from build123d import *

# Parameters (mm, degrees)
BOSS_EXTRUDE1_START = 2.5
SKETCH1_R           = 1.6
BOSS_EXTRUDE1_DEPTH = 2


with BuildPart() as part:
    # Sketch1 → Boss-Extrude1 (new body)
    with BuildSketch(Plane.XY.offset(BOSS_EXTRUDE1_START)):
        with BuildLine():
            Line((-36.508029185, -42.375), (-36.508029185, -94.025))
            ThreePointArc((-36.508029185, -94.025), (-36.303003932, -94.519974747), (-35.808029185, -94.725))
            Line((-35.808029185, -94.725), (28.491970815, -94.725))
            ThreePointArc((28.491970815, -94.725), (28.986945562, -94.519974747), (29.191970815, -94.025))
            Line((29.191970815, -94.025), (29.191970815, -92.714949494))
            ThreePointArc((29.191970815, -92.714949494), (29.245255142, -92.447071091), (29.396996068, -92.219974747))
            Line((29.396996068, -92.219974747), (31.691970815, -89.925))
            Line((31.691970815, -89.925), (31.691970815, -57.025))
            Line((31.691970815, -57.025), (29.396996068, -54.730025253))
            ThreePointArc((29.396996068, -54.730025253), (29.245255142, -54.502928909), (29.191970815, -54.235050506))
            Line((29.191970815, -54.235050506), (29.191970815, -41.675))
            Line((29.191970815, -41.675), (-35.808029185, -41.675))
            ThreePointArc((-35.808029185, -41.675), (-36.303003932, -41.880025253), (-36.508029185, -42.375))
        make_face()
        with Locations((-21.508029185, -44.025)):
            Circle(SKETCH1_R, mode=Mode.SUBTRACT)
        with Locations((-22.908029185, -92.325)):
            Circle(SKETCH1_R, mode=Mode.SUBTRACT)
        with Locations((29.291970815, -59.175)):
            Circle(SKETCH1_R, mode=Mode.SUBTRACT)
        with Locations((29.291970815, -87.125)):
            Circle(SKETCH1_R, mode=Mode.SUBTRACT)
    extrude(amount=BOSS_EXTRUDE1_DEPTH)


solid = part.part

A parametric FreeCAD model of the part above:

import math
import FreeCAD as App
import Part
import Sketcher
Q = App.Units.Quantity

doc = App.newDocument("Part")
params = doc.addObject("Spreadsheet::Sheet", "Params")
for row, (alias, value) in enumerate([
    ("sketch1_diameter", "3.2 mm"),
    ("sketch1_radius", "0.7 mm"),
    ("sketch1_width", "65 mm"),
    ("sketch1_height", "32.9 mm"),
    ("sketch1_height2", "51.65 mm"),
    ("pad1_length", "2 mm"),
], start=1):
    params.set(f"A{row}", alias)
    params.set(f"B{row}", "=" + value)
    params.setAlias(f"B{row}", alias)

body = doc.addObject("PartDesign::Body", "Body")

sketch1 = doc.addObject("Sketcher::SketchObject", "Sketch")
body.addObject(sketch1)
sketch1.AttachmentSupport = (doc.XY_Plane, [""])
sketch1.MapMode = "FlatFace"
sketch1.AttachmentOffset = App.Placement(App.Vector(0, 0, 2.5), App.Rotation())
sketch1.addGeometry([
    Part.LineSegment(App.Vector(-36.5, -42.4, 0), App.Vector(-36.5, -94, 0)),
    Part.ArcOfCircle(Part.Circle(App.Vector(-35.8, -94, 0), App.Vector(0, 0, 1), 0.7), math.radians(180), math.radians(270)),
    Part.LineSegment(App.Vector(-35.8, -94.7, 0), App.Vector(28.5, -94.7, 0)),
    Part.ArcOfCircle(Part.Circle(App.Vector(28.5, -94, 0), App.Vector(0, 0, 1), 0.7), math.radians(-90), math.radians(0)),
    Part.LineSegment(App.Vector(29.2, -94, 0), App.Vector(29.2, -92.7, 0)),
    Part.ArcOfCircle(Part.Circle(App.Vector(29.9, -92.7, 0), App.Vector(0, 0, 1), 0.7), math.radians(135), math.radians(180)),
    Part.LineSegment(App.Vector(29.4, -92.2, 0), App.Vector(31.7, -89.9, 0)),
    Part.LineSegment(App.Vector(31.7, -89.9, 0), App.Vector(31.7, -57, 0)),
    Part.LineSegment(App.Vector(31.7, -57, 0), App.Vector(29.4, -54.7, 0)),
    Part.ArcOfCircle(Part.Circle(App.Vector(29.9, -54.2, 0), App.Vector(0, 0, 1), 0.7), math.radians(180), math.radians(225)),
    Part.LineSegment(App.Vector(29.2, -54.2, 0), App.Vector(29.2, -41.7, 0)),
    Part.LineSegment(App.Vector(29.2, -41.7, 0), App.Vector(-35.8, -41.7, 0)),
    Part.ArcOfCircle(Part.Circle(App.Vector(-35.8, -42.4, 0), App.Vector(0, 0, 1), 0.7), math.radians(90), math.radians(180)),
    Part.Circle(App.Vector(-22.9, -92.3, 0), App.Vector(0, 0, 1), 1.6),
    Part.Circle(App.Vector(29.3, -87.1, 0), App.Vector(0, 0, 1), 1.6),
    Part.Circle(App.Vector(-21.5, -44, 0), App.Vector(0, 0, 1), 1.6),
    Part.Circle(App.Vector(29.3, -59.2, 0), App.Vector(0, 0, 1), 1.6),
], False)
sketch1.addConstraint([
    Sketcher.Constraint("Tangent", 0, 2, 1, 1),
    Sketcher.Constraint("Tangent", 1, 2, 2, 1),
    Sketcher.Constraint("Tangent", 2, 2, 3, 1),
    Sketcher.Constraint("Tangent", 3, 2, 4, 1),
    Sketcher.Constraint("Tangent", 4, 2, 5, 2),
    Sketcher.Constraint("Tangent", 5, 1, 6, 1),
    Sketcher.Constraint("Coincident", 6, 2, 7, 1),
    Sketcher.Constraint("Coincident", 7, 2, 8, 1),
    Sketcher.Constraint("Tangent", 8, 2, 9, 2),
    Sketcher.Constraint("Tangent", 9, 1, 10, 1),
    Sketcher.Constraint("Coincident", 10, 2, 11, 1),
    Sketcher.Constraint("Tangent", 11, 2, 12, 1),
    Sketcher.Constraint("Tangent", 12, 2, 0, 1),
    Sketcher.Constraint("Vertical", 0),
    Sketcher.Constraint("Horizontal", 2),
    Sketcher.Constraint("Vertical", 4),
    Sketcher.Constraint("Vertical", 7),
    Sketcher.Constraint("Vertical", 10),
    Sketcher.Constraint("Horizontal", 11),
    Sketcher.Constraint("Equal", 1, 3),
    Sketcher.Constraint("Equal", 3, 5),
    Sketcher.Constraint("Equal", 5, 9),
    Sketcher.Constraint("Equal", 9, 12),
    Sketcher.Constraint("Equal", 13, 14),
    Sketcher.Constraint("Equal", 14, 15),
    Sketcher.Constraint("Equal", 15, 16),
    Sketcher.Constraint("Perpendicular", 6, 8),
    Sketcher.Constraint("Vertical", 5, 3, 9, 3),
    Sketcher.Constraint("Vertical", 14, 3, 16, 3),
    Sketcher.Constraint("Vertical", 5, 1, 8, 2),
    Sketcher.Constraint("Diameter", 13, Q("3.2 mm")),
    Sketcher.Constraint("Radius", 1, Q("0.7 mm")),
    Sketcher.Constraint("DistanceX", 11, 2, 11, 1, Q("65 mm")),
    Sketcher.Constraint("DistanceY", 7, 1, 7, 2, Q("32.9 mm")),
    Sketcher.Constraint("DistanceY", 1, 3, 15, 3, Q("50 mm")),
    Sketcher.Constraint("DistanceX", 0, 2, 15, 3, Q("15 mm")),
    Sketcher.Constraint("DistanceY", 0, 2, 0, 1, Q("51.65 mm")),
    Sketcher.Constraint("DistanceX", 1, 3, 13, 3, Q("12.9 mm")),
    Sketcher.Constraint("DistanceY", 1, 3, 13, 3, Q("1.7 mm")),
    Sketcher.Constraint("DistanceX", 14, 3, 5, 3, Q("0.6 mm")),
    Sketcher.Constraint("DistanceY", 3, 3, 14, 3, Q("6.9 mm")),
    Sketcher.Constraint("DistanceX", 5, 3, 6, 2, Q("1.8 mm")),
    Sketcher.Constraint("DistanceY", 6, 2, 14, 3, Q("2.8 mm")),
    Sketcher.Constraint("DistanceY", 16, 3, 10, 2, Q("17.5 mm")),
    Sketcher.Constraint("DistanceY", 1, 3, -1, 1, Q("94.025 mm")),
    Sketcher.Constraint("DistanceX", 1, 3, -1, 1, Q("35.808029 mm")),
])
sketch1.setExpression("Constraints[30]", "Params.sketch1_diameter")
sketch1.setExpression("Constraints[31]", "Params.sketch1_radius")
sketch1.setExpression("Constraints[32]", "Params.sketch1_width")
sketch1.setExpression("Constraints[33]", "Params.sketch1_height")
sketch1.setExpression("Constraints[36]", "Params.sketch1_height2")
pad1 = doc.addObject("PartDesign::Pad", "Pad")
body.addObject(pad1)
pad1.Profile = sketch1
pad1.setExpression("Length", "Params.pad1_length")

doc.recompute()
